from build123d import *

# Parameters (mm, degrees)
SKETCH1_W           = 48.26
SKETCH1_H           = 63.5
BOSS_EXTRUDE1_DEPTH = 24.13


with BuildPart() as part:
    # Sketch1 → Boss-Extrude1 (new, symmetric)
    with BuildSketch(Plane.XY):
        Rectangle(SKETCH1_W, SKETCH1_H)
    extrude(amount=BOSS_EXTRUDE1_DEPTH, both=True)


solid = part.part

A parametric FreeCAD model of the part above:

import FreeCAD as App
import Part
import Sketcher
Q = App.Units.Quantity


def add_polygon(sketch, points):
    """Adds a closed chain of lines whose ends are joined by coincident constraints."""
    first, n = sketch.GeometryCount, len(points)
    for a, b in zip(points, points[1:] + points[:1]):
        sketch.addGeometry(Part.LineSegment(App.Vector(*a, 0), App.Vector(*b, 0)), False)
    for i in range(n):
        sketch.addConstraint(Sketcher.Constraint("Coincident", first + i, 2, first + (i + 1) % n, 1))

doc = App.newDocument("Part")
body = doc.addObject("PartDesign::Body", "Body")

sketch1 = body.newObject("Sketcher::SketchObject", "Sketch")
sketch1.AttachmentSupport = (doc.getObject("XY_Plane"), [""])
sketch1.MapMode = "FlatFace"
add_polygon(sketch1, [(-24.13, 31.75), (-24.13, -31.75), (24.13, -31.75), (24.13, 31.75)])
sketch1.addConstraint([
    Sketcher.Constraint("Vertical", 0),
    Sketcher.Constraint("Horizontal", 1),
    Sketcher.Constraint("Vertical", 2),
    Sketcher.Constraint("Horizontal", 3),
    Sketcher.Constraint("Symmetric", 0, 2, 2, 2, -1, 1),
    Sketcher.Constraint("DistanceX", 1, 1, 1, 2, Q("1.9 in")),
    Sketcher.Constraint("DistanceY", 0, 2, 0, 1, Q("2.5 in")),
])
pad1 = body.newObject("PartDesign::Pad", "Pad")
pad1.Profile = sketch1
pad1.Length = Q("1.9 in")
pad1.Midplane = True

doc.recompute()
